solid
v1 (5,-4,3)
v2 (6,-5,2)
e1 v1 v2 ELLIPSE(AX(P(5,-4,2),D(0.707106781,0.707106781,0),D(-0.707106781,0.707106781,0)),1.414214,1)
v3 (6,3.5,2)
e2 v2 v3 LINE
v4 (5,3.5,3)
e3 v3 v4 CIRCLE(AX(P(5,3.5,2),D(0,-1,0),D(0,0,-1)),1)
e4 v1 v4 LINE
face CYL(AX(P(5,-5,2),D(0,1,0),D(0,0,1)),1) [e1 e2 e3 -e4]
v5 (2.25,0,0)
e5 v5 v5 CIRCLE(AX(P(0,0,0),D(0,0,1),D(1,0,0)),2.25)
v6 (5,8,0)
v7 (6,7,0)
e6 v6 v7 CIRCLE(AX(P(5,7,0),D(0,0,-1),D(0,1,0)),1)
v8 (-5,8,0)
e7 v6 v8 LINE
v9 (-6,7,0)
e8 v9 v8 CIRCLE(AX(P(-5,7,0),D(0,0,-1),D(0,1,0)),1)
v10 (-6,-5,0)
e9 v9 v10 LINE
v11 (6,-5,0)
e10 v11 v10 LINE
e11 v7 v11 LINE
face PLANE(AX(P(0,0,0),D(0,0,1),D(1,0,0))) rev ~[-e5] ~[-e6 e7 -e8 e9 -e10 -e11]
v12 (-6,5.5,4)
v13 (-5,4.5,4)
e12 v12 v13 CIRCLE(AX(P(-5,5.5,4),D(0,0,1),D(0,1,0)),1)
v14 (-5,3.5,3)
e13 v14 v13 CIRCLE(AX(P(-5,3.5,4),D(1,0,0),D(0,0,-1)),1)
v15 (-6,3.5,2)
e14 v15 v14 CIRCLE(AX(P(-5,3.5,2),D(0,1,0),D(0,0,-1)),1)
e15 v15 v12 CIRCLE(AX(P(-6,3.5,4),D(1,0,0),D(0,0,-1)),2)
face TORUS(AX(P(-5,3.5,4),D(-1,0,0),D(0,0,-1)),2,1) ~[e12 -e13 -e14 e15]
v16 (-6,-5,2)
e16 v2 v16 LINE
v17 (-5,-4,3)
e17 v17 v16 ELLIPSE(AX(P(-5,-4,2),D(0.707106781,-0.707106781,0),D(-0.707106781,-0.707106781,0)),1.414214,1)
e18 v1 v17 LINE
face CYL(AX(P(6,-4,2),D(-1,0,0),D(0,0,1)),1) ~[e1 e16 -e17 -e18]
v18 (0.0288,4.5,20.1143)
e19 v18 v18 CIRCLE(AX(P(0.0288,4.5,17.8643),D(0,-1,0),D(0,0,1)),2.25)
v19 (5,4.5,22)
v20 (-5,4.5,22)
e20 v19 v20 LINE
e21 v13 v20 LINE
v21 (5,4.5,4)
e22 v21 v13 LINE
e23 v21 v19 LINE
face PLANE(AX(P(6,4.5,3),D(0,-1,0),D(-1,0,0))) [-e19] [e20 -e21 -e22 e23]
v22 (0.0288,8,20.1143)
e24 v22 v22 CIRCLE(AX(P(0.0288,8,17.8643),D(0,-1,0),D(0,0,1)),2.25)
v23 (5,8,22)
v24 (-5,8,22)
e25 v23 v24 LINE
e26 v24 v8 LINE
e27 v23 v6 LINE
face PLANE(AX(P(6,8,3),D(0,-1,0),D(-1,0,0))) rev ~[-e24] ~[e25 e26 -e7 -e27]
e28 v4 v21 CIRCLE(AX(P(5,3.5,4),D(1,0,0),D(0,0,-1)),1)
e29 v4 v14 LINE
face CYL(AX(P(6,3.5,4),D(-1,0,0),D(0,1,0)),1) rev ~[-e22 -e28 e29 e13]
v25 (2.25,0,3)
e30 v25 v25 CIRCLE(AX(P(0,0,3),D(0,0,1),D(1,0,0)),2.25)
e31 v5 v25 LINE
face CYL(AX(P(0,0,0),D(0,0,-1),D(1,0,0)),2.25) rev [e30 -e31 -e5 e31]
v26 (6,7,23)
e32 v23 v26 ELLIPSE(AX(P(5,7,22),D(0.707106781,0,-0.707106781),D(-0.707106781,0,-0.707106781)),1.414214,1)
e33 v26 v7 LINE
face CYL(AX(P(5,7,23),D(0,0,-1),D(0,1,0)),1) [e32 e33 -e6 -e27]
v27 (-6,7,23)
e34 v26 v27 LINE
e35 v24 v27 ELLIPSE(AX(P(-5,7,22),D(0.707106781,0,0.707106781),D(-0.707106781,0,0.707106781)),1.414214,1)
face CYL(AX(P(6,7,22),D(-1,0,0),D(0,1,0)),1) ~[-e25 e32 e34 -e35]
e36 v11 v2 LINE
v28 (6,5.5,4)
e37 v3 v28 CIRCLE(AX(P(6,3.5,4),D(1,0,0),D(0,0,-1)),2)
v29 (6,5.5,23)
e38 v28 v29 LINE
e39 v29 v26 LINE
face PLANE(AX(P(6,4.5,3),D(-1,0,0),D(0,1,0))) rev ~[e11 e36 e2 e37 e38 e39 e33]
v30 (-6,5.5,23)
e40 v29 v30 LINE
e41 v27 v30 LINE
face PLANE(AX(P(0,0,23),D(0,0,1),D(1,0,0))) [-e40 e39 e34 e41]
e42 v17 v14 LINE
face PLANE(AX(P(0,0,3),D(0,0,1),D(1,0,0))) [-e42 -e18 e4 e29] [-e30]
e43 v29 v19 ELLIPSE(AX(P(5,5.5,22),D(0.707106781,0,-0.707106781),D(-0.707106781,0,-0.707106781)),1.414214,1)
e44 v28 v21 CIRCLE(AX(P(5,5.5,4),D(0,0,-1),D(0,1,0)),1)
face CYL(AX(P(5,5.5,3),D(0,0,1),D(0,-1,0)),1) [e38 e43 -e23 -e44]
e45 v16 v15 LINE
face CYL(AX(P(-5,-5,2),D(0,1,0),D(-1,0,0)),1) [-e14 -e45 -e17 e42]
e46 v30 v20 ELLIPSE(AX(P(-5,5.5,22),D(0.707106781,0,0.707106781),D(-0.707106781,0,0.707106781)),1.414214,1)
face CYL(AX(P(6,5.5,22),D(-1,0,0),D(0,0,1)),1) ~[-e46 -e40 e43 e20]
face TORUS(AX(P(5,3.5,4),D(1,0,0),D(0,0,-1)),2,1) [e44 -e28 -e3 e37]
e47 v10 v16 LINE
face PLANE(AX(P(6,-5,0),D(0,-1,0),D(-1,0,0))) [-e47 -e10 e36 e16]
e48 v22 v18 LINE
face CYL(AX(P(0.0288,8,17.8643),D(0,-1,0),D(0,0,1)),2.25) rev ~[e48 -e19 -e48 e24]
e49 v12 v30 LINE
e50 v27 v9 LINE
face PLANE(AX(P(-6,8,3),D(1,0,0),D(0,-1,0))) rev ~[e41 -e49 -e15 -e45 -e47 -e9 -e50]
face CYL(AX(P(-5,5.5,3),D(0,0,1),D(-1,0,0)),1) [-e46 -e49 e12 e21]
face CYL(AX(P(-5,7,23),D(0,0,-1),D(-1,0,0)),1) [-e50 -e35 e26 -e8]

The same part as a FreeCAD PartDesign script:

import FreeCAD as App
import Part
import Sketcher
from FreeCAD import Vector


def edges_at(feature, points):
    """Names of the edges that pass closest to the given points."""
    edges = feature.Shape.Edges
    near = lambda p: min(range(len(edges)), key=lambda i: edges[i].distToShape(Part.Vertex(*p))[0])
    return sorted({f"Edge{near(p) + 1}" for p in points})

doc = App.newDocument("Part")
body = doc.addObject("PartDesign::Body", "Body")

# Sketch on XY plane
sketch1 = body.newObject("Sketcher::SketchObject", "Sketch")
sketch1.AttachmentSupport = (doc.getObject("XY_Plane"), [""])
sketch1.MapMode = "FlatFace"
sketch1.addGeometry(Part.LineSegment(Vector(-6, 8, 0), Vector(-6, -5, 0)), False)
sketch1.addGeometry(Part.LineSegment(Vector(-6, -5, 0), Vector(6, -5, 0)), False)
sketch1.addGeometry(Part.LineSegment(Vector(6, -5, 0), Vector(6, 8, 0)), False)
sketch1.addGeometry(Part.LineSegment(Vector(6, 8, 0), Vector(-6, 8, 0)), False)
sketch1.addGeometry(Part.Circle(Vector(0, 0, 0), Vector(0, 0, 1), 2.25), False)
sketch1.addConstraint(Sketcher.Constraint("Coincident", 0, 2, 1, 1))
sketch1.addConstraint(Sketcher.Constraint("Coincident", 1, 2, 2, 1))
sketch1.addConstraint(Sketcher.Constraint("Coincident", 2, 2, 3, 1))
sketch1.addConstraint(Sketcher.Constraint("Coincident", 3, 2, 0, 1))
sketch1.addConstraint(Sketcher.Constraint("Vertical", 0))
sketch1.addConstraint(Sketcher.Constraint("Horizontal", 1))
sketch1.addConstraint(Sketcher.Constraint("Vertical", 2))
sketch1.addConstraint(Sketcher.Constraint("Horizontal", 3))
sketch1.addConstraint(Sketcher.Constraint("Coincident", 4, 3, -1, 1))
sketch1.addConstraint(Sketcher.Constraint("Diameter", 4, 4.5))
sketch1.addConstraint(Sketcher.Constraint("DistanceX", 0, 2, -1, 1, 6.0))
sketch1.addConstraint(Sketcher.Constraint("DistanceY", 0, 2, -1, 1, 5.0))
sketch1.addConstraint(Sketcher.Constraint("DistanceX", -1, 1, 1, 2, 6.0))
sketch1.addConstraint(Sketcher.Constraint("DistanceY", 0, 2, 0, 1, 13.0))
pad1 = body.newObject("PartDesign::Pad", "Pad")
pad1.Profile = sketch1
pad1.Length = 3

# Sketch on XY plane
sketch2 = body.newObject("Sketcher::SketchObject", "Sketch001")
sketch2.AttachmentSupport = (doc.getObject("XY_Plane"), [""])
sketch2.MapMode = "FlatFace"
sketch2.AttachmentOffset = App.Placement(Vector(0, 0, 3), App.Rotation())
sketch2.addGeometry(Part.LineSegment(Vector(-6, 8, 0), Vector(-6, 4.5, 0)), False)
sketch2.addGeometry(Part.LineSegment(Vector(-6, 4.5, 0), Vector(6, 4.5, 0)), False)
sketch2.addGeometry(Part.LineSegment(Vector(6, 4.5, 0), Vector(6, 8, 0)), False)
sketch2.addGeometry(Part.LineSegment(Vector(6, 8, 0), Vector(-6, 8, 0)), False)
sketch2.addConstraint(Sketcher.Constraint("Coincident", 0, 2, 1, 1))
sketch2.addConstraint(Sketcher.Constraint("Coincident", 1, 2, 2, 1))
sketch2.addConstraint(Sketcher.Constraint("Coincident", 2, 2, 3, 1))
sketch2.addConstraint(Sketcher.Constraint("Coincident", 3, 2, 0, 1))
sketch2.addConstraint(Sketcher.Constraint("Vertical", 0))
sketch2.addConstraint(Sketcher.Constraint("Horizontal", 1))
sketch2.addConstraint(Sketcher.Constraint("Vertical", 2))
sketch2.addConstraint(Sketcher.Constraint("Horizontal", 3))
sketch2.addConstraint(Sketcher.Constraint("DistanceY", 0, 2, 0, 1, 3.5))
sketch2.addConstraint(Sketcher.Constraint("DistanceX", 1, 1, 1, 2, 12.0))
sketch2.addConstraint(Sketcher.Constraint("DistanceX", 0, 2, -1, 1, 6.0))
sketch2.addConstraint(Sketcher.Constraint("DistanceY", -1, 1, 2, 2, 8.0))
pad2 = body.newObject("PartDesign::Pad", "Pad001")
pad2.Profile = sketch2
pad2.Length = 20

# Sketch on XZ plane
sketch3 = body.newObject("Sketcher::SketchObject", "Sketch002")
sketch3.AttachmentSupport = (doc.getObject("XZ_Plane"), [""])
sketch3.MapMode = "FlatFace"
sketch3.AttachmentOffset = App.Placement(Vector(0, 0, -8), App.Rotation())
sketch3.addGeometry(Part.Circle(Vector(0.0288, 17.8643, 0), Vector(0, 0, 1), 2.25), False)
sketch3.addConstraint(Sketcher.Constraint("Diameter", 0, 4.5))
sketch3.addConstraint(Sketcher.Constraint("DistanceX", -1, 1, 0, 3, 0.0288))
sketch3.addConstraint(Sketcher.Constraint("DistanceY", -1, 1, 0, 3, 17.8643))
doc.recompute()
hole = body.newObject("PartDesign::Hole", "Hole")
hole.Profile = sketch3
hole.ThreadType = "None"
hole.Diameter = 4.5
hole.DepthType = "Dimension"
hole.Depth = 4
hole.DrillPoint = "Angled"
hole.DrillPointAngle = 118
hole.Reversed = True
doc.recompute()

fillet = body.newObject("PartDesign::Fillet", "Fillet")
fillet.Base = (hole, edges_at(hole, [
    (0, 4.5, 3),
    (0, 8, 23),
    (0, 4.5, 23),
    (0, -5, 3),
    (-6, -0.25, 3),
    (6, -0.25, 3),
    (6, 4.5, 13),
    (-6, 4.5, 13),
    (-6, 8, 11.5),
    (6, 8, 11.5),
]))
fillet.Radius = 1

doc.recompute()
